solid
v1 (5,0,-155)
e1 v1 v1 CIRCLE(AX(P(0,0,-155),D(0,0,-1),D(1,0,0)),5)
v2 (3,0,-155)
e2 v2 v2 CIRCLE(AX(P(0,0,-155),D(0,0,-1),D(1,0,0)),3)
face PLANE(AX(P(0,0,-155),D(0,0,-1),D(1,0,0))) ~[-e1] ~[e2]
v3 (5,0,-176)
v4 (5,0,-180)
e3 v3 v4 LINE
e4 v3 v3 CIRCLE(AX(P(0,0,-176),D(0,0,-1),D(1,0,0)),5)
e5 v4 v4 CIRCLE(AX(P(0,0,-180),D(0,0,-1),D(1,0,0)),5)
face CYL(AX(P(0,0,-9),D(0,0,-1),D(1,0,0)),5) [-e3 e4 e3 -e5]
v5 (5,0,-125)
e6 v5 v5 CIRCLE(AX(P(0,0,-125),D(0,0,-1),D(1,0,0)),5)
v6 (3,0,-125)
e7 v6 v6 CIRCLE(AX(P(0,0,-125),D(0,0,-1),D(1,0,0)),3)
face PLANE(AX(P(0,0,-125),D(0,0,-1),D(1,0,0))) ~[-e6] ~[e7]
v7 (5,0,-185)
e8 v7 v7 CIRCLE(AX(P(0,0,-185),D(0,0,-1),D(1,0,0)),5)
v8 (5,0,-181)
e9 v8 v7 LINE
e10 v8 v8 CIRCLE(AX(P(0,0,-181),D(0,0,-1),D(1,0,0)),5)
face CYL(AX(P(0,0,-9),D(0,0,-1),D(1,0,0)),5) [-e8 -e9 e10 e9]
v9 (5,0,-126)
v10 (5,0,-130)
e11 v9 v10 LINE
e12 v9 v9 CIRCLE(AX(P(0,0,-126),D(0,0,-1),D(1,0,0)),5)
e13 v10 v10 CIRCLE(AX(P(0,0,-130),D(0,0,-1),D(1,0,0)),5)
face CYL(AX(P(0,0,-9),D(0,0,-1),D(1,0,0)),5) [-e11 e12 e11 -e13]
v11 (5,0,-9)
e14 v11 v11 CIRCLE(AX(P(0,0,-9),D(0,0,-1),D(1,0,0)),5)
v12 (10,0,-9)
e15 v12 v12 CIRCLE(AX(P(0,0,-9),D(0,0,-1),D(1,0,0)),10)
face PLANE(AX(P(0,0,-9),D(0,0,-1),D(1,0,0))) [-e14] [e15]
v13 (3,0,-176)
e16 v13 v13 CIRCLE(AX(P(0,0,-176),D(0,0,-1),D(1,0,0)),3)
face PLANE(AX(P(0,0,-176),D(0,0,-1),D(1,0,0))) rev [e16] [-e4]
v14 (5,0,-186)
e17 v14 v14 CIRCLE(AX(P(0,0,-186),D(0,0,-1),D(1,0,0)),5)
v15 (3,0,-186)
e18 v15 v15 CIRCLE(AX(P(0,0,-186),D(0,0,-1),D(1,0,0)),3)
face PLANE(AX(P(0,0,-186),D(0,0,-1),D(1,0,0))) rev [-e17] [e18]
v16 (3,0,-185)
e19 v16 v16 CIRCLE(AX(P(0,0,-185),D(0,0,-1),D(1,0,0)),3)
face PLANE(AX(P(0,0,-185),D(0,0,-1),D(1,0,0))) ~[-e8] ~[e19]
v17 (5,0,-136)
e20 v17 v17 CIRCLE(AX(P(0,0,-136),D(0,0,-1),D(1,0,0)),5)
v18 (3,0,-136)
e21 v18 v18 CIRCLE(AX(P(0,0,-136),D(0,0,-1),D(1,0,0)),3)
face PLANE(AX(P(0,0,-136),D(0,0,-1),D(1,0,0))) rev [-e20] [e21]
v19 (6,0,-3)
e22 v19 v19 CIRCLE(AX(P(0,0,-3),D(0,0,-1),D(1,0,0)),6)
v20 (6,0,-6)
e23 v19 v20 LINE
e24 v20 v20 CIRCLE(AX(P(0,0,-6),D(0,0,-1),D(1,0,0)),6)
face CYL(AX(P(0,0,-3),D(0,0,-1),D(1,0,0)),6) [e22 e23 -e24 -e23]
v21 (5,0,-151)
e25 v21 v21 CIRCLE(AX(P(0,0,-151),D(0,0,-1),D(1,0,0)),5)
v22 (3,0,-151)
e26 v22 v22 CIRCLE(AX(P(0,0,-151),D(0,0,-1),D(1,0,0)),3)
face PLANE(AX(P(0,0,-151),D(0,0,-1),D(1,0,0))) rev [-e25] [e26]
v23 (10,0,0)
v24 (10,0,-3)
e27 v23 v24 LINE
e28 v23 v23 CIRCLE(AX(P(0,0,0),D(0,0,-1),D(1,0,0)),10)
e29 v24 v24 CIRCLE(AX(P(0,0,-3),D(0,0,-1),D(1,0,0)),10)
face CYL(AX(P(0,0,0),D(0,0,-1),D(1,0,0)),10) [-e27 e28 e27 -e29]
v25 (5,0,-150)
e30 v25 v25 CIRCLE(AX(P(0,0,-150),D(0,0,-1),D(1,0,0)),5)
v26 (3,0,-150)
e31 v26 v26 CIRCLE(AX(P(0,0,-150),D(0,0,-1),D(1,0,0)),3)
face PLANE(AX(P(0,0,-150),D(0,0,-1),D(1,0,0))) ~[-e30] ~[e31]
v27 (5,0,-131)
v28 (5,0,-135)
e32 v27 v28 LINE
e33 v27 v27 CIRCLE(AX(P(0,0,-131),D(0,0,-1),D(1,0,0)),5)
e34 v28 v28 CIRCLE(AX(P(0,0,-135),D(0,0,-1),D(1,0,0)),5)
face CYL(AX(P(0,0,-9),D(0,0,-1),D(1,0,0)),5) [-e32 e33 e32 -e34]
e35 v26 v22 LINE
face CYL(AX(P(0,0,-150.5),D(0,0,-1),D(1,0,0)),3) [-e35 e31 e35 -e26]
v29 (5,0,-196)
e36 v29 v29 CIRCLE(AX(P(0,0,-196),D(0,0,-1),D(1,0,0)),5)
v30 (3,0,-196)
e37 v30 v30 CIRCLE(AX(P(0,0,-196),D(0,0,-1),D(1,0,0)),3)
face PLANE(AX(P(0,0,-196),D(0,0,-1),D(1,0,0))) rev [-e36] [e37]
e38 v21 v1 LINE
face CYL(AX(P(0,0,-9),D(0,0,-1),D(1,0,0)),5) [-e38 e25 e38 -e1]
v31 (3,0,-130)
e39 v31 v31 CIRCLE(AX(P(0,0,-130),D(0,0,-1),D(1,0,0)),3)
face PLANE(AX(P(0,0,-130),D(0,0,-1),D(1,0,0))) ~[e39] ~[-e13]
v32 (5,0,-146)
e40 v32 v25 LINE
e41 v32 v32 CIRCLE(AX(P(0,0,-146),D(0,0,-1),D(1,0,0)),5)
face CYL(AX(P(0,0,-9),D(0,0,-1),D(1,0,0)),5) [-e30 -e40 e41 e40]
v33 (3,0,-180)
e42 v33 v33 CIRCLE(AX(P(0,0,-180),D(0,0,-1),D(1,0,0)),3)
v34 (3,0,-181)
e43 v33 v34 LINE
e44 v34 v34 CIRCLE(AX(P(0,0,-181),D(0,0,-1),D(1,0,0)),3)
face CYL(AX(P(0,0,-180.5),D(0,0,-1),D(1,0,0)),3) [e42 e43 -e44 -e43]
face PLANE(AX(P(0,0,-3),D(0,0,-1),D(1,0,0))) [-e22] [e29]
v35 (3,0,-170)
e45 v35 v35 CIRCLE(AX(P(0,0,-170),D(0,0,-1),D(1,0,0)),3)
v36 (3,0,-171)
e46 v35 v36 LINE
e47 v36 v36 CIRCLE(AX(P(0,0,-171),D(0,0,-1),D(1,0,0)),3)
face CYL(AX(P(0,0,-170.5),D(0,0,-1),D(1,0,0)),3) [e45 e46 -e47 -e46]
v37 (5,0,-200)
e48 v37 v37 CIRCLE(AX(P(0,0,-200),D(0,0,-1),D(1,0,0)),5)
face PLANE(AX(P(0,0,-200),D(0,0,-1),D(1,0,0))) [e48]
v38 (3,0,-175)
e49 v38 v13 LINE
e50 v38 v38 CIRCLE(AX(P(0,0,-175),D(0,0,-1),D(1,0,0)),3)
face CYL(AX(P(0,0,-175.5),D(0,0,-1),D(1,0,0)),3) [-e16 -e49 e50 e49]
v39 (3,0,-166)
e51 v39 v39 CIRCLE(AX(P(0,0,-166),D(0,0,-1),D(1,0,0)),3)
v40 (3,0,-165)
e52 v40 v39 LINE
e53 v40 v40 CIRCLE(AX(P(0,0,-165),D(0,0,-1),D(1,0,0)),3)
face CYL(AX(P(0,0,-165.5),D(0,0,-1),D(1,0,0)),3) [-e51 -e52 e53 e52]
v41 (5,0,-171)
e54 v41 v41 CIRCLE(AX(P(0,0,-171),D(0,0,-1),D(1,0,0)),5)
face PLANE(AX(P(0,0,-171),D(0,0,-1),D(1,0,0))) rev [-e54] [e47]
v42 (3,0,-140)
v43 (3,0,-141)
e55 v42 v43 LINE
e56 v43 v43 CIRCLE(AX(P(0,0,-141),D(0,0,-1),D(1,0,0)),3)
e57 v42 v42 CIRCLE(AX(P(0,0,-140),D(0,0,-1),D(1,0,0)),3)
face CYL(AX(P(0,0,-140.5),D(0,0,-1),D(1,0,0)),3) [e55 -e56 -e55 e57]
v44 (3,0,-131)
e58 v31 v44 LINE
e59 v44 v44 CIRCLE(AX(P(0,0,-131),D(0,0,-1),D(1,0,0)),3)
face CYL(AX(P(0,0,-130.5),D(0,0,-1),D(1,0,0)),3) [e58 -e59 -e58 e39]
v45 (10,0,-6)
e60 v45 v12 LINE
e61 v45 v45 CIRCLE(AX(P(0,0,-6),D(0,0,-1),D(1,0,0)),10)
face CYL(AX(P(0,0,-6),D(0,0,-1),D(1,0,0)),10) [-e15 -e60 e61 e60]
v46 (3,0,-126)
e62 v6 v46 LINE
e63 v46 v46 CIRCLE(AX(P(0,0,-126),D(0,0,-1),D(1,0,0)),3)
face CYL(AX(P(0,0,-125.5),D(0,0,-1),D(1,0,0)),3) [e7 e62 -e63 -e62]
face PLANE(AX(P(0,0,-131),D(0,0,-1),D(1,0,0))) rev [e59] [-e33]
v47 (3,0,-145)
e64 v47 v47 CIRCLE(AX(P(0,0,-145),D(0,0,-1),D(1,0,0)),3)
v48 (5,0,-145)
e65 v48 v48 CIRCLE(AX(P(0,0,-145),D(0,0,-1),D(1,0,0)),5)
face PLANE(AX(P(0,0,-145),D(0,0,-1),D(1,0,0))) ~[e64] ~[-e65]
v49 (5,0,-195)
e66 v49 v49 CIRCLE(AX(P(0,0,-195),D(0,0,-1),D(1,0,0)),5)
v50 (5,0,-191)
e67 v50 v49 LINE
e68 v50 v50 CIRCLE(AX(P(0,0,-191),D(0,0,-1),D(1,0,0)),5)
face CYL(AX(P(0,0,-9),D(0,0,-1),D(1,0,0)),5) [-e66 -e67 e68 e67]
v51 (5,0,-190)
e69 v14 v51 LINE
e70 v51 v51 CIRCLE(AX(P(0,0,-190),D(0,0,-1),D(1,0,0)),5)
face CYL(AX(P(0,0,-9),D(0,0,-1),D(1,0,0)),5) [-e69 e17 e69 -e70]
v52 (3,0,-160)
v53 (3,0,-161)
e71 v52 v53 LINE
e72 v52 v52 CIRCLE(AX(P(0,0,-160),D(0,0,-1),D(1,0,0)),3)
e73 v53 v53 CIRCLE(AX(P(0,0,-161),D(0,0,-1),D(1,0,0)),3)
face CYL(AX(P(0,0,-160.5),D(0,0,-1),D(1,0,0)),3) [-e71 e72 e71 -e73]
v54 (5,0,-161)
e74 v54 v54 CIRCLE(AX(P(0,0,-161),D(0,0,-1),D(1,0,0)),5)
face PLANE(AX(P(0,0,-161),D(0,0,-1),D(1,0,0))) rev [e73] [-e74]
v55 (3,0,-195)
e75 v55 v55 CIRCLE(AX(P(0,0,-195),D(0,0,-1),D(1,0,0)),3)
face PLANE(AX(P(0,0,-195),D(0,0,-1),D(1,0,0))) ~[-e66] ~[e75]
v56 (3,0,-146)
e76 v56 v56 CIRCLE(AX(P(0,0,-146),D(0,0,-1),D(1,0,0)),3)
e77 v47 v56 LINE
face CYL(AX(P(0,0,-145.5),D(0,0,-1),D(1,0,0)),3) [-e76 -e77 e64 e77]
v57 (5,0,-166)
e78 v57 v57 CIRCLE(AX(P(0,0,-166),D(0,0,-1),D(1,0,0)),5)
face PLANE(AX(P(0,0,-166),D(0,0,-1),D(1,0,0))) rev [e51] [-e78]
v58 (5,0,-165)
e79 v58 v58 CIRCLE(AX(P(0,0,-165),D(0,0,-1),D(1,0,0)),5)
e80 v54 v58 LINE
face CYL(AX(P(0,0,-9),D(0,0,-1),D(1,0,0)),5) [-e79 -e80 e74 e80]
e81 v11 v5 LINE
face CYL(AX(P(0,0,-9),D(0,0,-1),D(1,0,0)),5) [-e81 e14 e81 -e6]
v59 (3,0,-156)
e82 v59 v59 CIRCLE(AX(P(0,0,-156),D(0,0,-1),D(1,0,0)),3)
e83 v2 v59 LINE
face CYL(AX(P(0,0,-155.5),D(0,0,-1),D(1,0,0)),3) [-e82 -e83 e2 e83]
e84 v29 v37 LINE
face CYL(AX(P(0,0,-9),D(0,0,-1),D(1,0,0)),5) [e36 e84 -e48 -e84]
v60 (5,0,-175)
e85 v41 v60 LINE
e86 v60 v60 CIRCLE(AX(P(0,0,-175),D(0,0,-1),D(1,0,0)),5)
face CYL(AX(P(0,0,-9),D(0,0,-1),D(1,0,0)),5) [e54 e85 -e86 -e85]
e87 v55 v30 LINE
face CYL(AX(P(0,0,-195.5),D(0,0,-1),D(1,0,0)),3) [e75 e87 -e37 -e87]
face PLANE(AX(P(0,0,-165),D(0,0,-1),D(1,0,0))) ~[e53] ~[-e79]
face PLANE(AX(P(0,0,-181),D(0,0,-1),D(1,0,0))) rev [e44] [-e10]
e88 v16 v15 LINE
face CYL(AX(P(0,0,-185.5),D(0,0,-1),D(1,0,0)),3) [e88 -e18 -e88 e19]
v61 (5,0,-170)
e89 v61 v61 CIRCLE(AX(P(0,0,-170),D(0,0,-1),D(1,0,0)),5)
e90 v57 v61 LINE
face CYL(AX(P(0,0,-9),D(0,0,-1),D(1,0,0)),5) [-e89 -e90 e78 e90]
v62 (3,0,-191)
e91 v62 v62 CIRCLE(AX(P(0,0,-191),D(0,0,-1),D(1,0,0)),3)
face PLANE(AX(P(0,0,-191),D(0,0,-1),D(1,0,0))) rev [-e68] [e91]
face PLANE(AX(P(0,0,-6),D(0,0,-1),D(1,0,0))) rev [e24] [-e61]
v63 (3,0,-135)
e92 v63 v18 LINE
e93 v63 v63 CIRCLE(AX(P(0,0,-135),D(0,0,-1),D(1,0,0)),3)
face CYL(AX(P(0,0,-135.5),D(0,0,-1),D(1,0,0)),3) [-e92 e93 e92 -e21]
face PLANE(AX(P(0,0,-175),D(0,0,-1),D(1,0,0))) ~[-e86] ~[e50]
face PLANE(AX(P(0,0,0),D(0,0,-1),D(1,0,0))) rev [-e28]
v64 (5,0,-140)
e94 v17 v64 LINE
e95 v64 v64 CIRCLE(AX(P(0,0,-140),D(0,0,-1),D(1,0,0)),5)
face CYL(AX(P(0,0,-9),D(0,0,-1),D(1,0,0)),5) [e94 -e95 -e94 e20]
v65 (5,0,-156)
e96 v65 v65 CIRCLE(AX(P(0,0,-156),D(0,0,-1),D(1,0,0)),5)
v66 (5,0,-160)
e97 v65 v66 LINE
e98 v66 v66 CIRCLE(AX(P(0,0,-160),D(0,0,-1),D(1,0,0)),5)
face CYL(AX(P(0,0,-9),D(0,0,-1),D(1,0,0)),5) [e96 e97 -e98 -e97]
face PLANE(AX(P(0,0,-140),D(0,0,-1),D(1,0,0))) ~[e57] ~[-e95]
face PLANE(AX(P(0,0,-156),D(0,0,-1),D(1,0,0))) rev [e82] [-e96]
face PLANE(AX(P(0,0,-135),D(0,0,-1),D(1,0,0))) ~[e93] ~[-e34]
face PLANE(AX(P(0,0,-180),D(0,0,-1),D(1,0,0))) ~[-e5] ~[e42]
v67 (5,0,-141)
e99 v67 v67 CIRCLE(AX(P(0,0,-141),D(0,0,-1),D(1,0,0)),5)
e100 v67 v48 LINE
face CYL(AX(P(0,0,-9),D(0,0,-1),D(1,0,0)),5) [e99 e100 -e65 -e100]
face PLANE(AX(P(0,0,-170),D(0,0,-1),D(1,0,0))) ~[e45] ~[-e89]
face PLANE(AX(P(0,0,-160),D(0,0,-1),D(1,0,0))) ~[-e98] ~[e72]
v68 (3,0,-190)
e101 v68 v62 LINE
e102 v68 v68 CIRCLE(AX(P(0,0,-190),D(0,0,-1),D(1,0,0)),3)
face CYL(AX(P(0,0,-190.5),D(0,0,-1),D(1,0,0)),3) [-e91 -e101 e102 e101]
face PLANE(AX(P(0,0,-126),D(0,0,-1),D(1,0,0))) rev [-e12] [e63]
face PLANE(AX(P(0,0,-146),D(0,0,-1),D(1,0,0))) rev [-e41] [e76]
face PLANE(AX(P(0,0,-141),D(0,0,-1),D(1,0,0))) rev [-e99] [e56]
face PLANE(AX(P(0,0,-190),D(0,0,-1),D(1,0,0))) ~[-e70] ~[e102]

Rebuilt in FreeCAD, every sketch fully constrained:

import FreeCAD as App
import Part
import Sketcher
Q = App.Units.Quantity


def add_polygon(sketch, points):
    """Adds a closed chain of lines whose ends are joined by coincident constraints."""
    first, n = sketch.GeometryCount, len(points)
    for a, b in zip(points, points[1:] + points[:1]):
        sketch.addGeometry(Part.LineSegment(App.Vector(*a, 0), App.Vector(*b, 0)), False)
    for i in range(n):
        sketch.addConstraint(Sketcher.Constraint("Coincident", first + i, 2, first + (i + 1) % n, 1))

doc = App.newDocument("Part")
body = doc.addObject("PartDesign::Body", "Body")

sketch1 = body.newObject("Sketcher::SketchObject", "Sketch")
sketch1.AttachmentSupport = (doc.getObject("XZ_Plane"), [""])
sketch1.MapMode = "FlatFace"
add_polygon(sketch1, [(0, 0), (10, 0), (10, -3), (6, -3), (6, -6), (10, -6), (10, -9), (5, -9), (5, -200), (0, -200)])
sketch1.addConstraint([
    Sketcher.Constraint("Horizontal", 0),
    Sketcher.Constraint("Vertical", 1),
    Sketcher.Constraint("Horizontal", 2),
    Sketcher.Constraint("Vertical", 3),
    Sketcher.Constraint("Horizontal", 4),
    Sketcher.Constraint("Vertical", 5),
    Sketcher.Constraint("Horizontal", 6),
    Sketcher.Constraint("Vertical", 7),
    Sketcher.Constraint("Horizontal", 8),
    Sketcher.Constraint("Vertical", 9),
    Sketcher.Constraint("Coincident", 9, 2, -1, 1),
    Sketcher.Constraint("Vertical", 1, 2, 4, 2),
    Sketcher.Constraint("Equal", 6, 8),
    Sketcher.Constraint("Equal", 1, 3),
    Sketcher.Constraint("Equal", 3, 5),
    Sketcher.Constraint("DistanceX", 0, 1, 0, 2, Q("10 mm")),
    Sketcher.Constraint("DistanceX", 2, 2, 2, 1, Q("4 mm")),
    Sketcher.Constraint("DistanceY", 1, 2, 1, 1, Q("3 mm")),
    Sketcher.Constraint("DistanceY", 7, 2, 7, 1, Q("191 mm")),
])
revolution = body.newObject("PartDesign::Revolution", "Revolution")
revolution.Profile = sketch1
revolution.ReferenceAxis = (sketch1, ["V_Axis"])
revolution.Angle = 360

sketch2 = body.newObject("Sketcher::SketchObject", "Sketch001")
sketch2.AttachmentSupport = (doc.getObject("XZ_Plane"), [""])
sketch2.MapMode = "FlatFace"
add_polygon(sketch2, [(3, -196), (3, -195), (5, -195), (5, -196)])
sketch2.addConstraint([
    Sketcher.Constraint("Vertical", 0),
    Sketcher.Constraint("Horizontal", 1),
    Sketcher.Constraint("Vertical", 2),
    Sketcher.Constraint("Horizontal", 3),
    Sketcher.Constraint("DistanceX", 1, 1, 1, 2, Q("2 mm")),
    Sketcher.Constraint("DistanceY", 0, 1, 0, 2, Q("1 mm")),
    Sketcher.Constraint("DistanceX", -1, 1, 0, 2, Q("3 mm")),
    Sketcher.Constraint("DistanceY", 0, 2, -1, 1, Q("195 mm")),
])
groove = body.newObject("PartDesign::Groove", "Groove")
groove.Profile = sketch2
groove.ReferenceAxis = (sketch2, ["V_Axis"])
groove.Angle = 360
doc.recompute()

linearpattern = body.newObject("PartDesign::LinearPattern", "LinearPattern")
linearpattern.Originals = [groove]
linearpattern.Direction = (doc.getObject("Z_Axis"), [""])
linearpattern.Mode = "offset"
linearpattern.Offset = 5
linearpattern.Occurrences = 15
body.Tip = linearpattern

doc.recompute()
